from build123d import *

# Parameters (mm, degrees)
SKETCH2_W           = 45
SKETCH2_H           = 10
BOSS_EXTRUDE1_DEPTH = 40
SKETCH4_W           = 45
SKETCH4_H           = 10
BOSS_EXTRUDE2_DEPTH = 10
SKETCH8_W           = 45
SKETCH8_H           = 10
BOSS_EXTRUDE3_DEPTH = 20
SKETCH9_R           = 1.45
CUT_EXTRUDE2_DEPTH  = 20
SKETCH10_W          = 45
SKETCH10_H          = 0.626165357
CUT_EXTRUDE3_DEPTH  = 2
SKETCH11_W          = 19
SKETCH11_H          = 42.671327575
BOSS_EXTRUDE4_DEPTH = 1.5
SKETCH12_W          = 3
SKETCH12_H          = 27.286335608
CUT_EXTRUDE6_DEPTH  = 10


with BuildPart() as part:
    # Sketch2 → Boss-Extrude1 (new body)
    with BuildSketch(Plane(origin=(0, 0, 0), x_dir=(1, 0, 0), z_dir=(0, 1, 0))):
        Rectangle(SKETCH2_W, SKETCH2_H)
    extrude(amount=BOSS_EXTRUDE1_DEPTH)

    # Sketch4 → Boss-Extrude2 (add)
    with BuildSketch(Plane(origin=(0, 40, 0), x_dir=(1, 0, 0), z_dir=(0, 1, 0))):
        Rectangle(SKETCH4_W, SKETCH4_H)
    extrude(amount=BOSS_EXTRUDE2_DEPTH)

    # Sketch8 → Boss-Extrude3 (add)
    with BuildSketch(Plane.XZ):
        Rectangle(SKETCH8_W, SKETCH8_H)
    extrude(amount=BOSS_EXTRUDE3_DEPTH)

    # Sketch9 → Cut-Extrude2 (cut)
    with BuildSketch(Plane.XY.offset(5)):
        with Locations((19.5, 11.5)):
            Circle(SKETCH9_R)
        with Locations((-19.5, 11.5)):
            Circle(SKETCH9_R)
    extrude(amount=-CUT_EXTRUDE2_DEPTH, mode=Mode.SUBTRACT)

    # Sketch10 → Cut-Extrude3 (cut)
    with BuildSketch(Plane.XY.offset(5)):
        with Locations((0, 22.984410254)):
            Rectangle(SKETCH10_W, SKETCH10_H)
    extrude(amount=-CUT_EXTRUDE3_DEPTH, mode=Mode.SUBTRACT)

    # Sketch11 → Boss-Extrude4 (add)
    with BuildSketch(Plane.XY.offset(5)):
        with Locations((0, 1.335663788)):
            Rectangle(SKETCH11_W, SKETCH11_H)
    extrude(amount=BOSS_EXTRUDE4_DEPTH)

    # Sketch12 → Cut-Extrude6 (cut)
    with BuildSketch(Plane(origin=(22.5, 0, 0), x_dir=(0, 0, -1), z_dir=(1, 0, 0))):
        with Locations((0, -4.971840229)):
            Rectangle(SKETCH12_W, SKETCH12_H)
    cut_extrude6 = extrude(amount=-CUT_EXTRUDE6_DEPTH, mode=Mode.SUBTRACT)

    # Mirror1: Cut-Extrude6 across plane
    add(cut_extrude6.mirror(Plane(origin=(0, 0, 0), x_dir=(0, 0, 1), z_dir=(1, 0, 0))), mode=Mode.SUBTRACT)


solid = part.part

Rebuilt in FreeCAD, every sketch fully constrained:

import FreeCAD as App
import Part
import Sketcher

V = App.Vector

doc = App.newDocument("Part")
body = doc.addObject("PartDesign::Body", "Body")

sketch1 = body.newObject("Sketcher::SketchObject", "Sketch")
sketch1.AttachmentSupport = (doc.getObject("XZ_Plane"), [""])
sketch1.MapMode = "FlatFace"
sketch1.addGeometry([
    Part.LineSegment(V(-22.5, -5, 0), V(-22.5, 5, 0)),
    Part.LineSegment(V(-22.5, 5, 0), V(22.5, 5, 0)),
    Part.LineSegment(V(22.5, 5, 0), V(22.5, -5, 0)),
    Part.LineSegment(V(22.5, -5, 0), V(-22.5, -5, 0)),
], False)
sketch1.addConstraint([
    Sketcher.Constraint("Coincident", 0, 2, 1, 1),
    Sketcher.Constraint("Coincident", 1, 2, 2, 1),
    Sketcher.Constraint("Coincident", 2, 2, 3, 1),
    Sketcher.Constraint("Coincident", 3, 2, 0, 1),
    Sketcher.Constraint("Vertical", 0),
    Sketcher.Constraint("Horizontal", 1),
    Sketcher.Constraint("Vertical", 2),
    Sketcher.Constraint("Horizontal", 3),
    Sketcher.Constraint("Symmetric", 0, 2, 2, 2, -1, 1),
    Sketcher.Constraint("DistanceX", 1, 1, 1, 2, 45.0),
    Sketcher.Constraint("DistanceY", 0, 1, 0, 2, 10.0),
])
pad1 = body.newObject("PartDesign::Pad", "Pad")
pad1.Profile = sketch1
pad1.Length = 40
pad1.Reversed = True

sketch2 = body.newObject("Sketcher::SketchObject", "Sketch001")
sketch2.AttachmentSupport = (doc.getObject("XZ_Plane"), [""])
sketch2.MapMode = "FlatFace"
sketch2.AttachmentOffset = App.Placement(V(0, 0, -40), App.Rotation())
sketch2.addGeometry([
    Part.LineSegment(V(-22.5, -5, 0), V(-22.5, 5, 0)),
    Part.LineSegment(V(-22.5, 5, 0), V(22.5, 5, 0)),
    Part.LineSegment(V(22.5, 5, 0), V(22.5, -5, 0)),
    Part.LineSegment(V(22.5, -5, 0), V(-22.5, -5, 0)),
], False)
sketch2.addConstraint([
    Sketcher.Constraint("Coincident", 0, 2, 1, 1),
    Sketcher.Constraint("Coincident", 1, 2, 2, 1),
    Sketcher.Constraint("Coincident", 2, 2, 3, 1),
    Sketcher.Constraint("Coincident", 3, 2, 0, 1),
    Sketcher.Constraint("Vertical", 0),
    Sketcher.Constraint("Horizontal", 1),
    Sketcher.Constraint("Vertical", 2),
    Sketcher.Constraint("Horizontal", 3),
    Sketcher.Constraint("Symmetric", 0, 2, 2, 2, -1, 1),
    Sketcher.Constraint("DistanceX", 1, 1, 1, 2, 45.0),
    Sketcher.Constraint("DistanceY", 0, 1, 0, 2, 10.0),
])
pad2 = body.newObject("PartDesign::Pad", "Pad001")
pad2.Profile = sketch2
pad2.Length = 10
pad2.Reversed = True

sketch3 = body.newObject("Sketcher::SketchObject", "Sketch002")
sketch3.AttachmentSupport = (doc.getObject("XZ_Plane"), [""])
sketch3.MapMode = "FlatFace"
sketch3.addGeometry([
    Part.LineSegment(V(-22.5, 5, 0), V(-22.5, -5, 0)),
    Part.LineSegment(V(-22.5, -5, 0), V(22.5, -5, 0)),
    Part.LineSegment(V(22.5, -5, 0), V(22.5, 5, 0)),
    Part.LineSegment(V(22.5, 5, 0), V(-22.5, 5, 0)),
], False)
sketch3.addConstraint([
    Sketcher.Constraint("Coincident", 0, 2, 1, 1),
    Sketcher.Constraint("Coincident", 1, 2, 2, 1),
    Sketcher.Constraint("Coincident", 2, 2, 3, 1),
    Sketcher.Constraint("Coincident", 3, 2, 0, 1),
    Sketcher.Constraint("Vertical", 0),
    Sketcher.Constraint("Horizontal", 1),
    Sketcher.Constraint("Vertical", 2),
    Sketcher.Constraint("Horizontal", 3),
    Sketcher.Constraint("Symmetric", 0, 2, 2, 2, -1, 1),
    Sketcher.Constraint("DistanceX", 1, 1, 1, 2, 45.0),
    Sketcher.Constraint("DistanceY", 0, 2, 0, 1, 10.0),
])
pad3 = body.newObject("PartDesign::Pad", "Pad002")
pad3.Profile = sketch3
pad3.Length = 20

sketch4 = body.newObject("Sketcher::SketchObject", "Sketch003")
sketch4.AttachmentSupport = (doc.getObject("XY_Plane"), [""])
sketch4.MapMode = "FlatFace"
sketch4.AttachmentOffset = App.Placement(V(0, 0, 5), App.Rotation())
sketch4.addGeometry([
    Part.Circle(V(19.5, 11.5, 0), V(0, 0, 1), 1.45),
    Part.Circle(V(-19.5, 11.5, 0), V(0, 0, 1), 1.45),
], False)
sketch4.addConstraint([
    Sketcher.Constraint("Equal", 0, 1),
    Sketcher.Constraint("Symmetric", 0, 3, 1, 3, -2),
    Sketcher.Constraint("Diameter", 0, 2.9),
    Sketcher.Constraint("DistanceX", 1, 3, 0, 3, 39.0),
    Sketcher.Constraint("DistanceY", -1, 1, 0, 3, 11.5),
])
pocket1 = body.newObject("PartDesign::Pocket", "Pocket")
pocket1.Profile = sketch4
pocket1.Length = 20

sketch5 = body.newObject("Sketcher::SketchObject", "Sketch004")
sketch5.AttachmentSupport = (doc.getObject("XY_Plane"), [""])
sketch5.MapMode = "FlatFace"
sketch5.AttachmentOffset = App.Placement(V(0, 0, 5), App.Rotation())
sketch5.addGeometry([
    Part.LineSegment(V(-22.5, 23.297493, 0), V(-22.5, 22.671328, 0)),
    Part.LineSegment(V(-22.5, 22.671328, 0), V(22.5, 22.671328, 0)),
    Part.LineSegment(V(22.5, 22.671328, 0), V(22.5, 23.297493, 0)),
    Part.LineSegment(V(22.5, 23.297493, 0), V(-22.5, 23.297493, 0)),
], False)
sketch5.addConstraint([
    Sketcher.Constraint("Coincident", 0, 2, 1, 1),
    Sketcher.Constraint("Coincident", 1, 2, 2, 1),
    Sketcher.Constraint("Coincident", 2, 2, 3, 1),
    Sketcher.Constraint("Coincident", 3, 2, 0, 1),
    Sketcher.Constraint("Vertical", 0),
    Sketcher.Constraint("Horizontal", 1),
    Sketcher.Constraint("Vertical", 2),
    Sketcher.Constraint("Horizontal", 3),
    Sketcher.Constraint("DistanceX", 1, 1, 1, 2, 45.0),
    Sketcher.Constraint("DistanceX", 0, 2, -1, 1, 22.5),
    Sketcher.Constraint("DistanceY", 0, 2, 0, 1, 0.626165),
    Sketcher.Constraint("DistanceY", -1, 1, 0, 2, 22.671328),
])
pocket2 = body.newObject("PartDesign::Pocket", "Pocket001")
pocket2.Profile = sketch5
pocket2.Length = 2

sketch6 = body.newObject("Sketcher::SketchObject", "Sketch005")
sketch6.AttachmentSupport = (doc.getObject("XY_Plane"), [""])
sketch6.MapMode = "FlatFace"
sketch6.AttachmentOffset = App.Placement(V(0, 0, 5), App.Rotation())
sketch6.addGeometry([
    Part.LineSegment(V(-9.5, 22.671328, 0), V(-9.5, -20, 0)),
    Part.LineSegment(V(-9.5, -20, 0), V(9.5, -20, 0)),
    Part.LineSegment(V(9.5, -20, 0), V(9.5, 22.671328, 0)),
    Part.LineSegment(V(9.5, 22.671328, 0), V(-9.5, 22.671328, 0)),
], False)
sketch6.addConstraint([
    Sketcher.Constraint("Coincident", 0, 2, 1, 1),
    Sketcher.Constraint("Coincident", 1, 2, 2, 1),
    Sketcher.Constraint("Coincident", 2, 2, 3, 1),
    Sketcher.Constraint("Coincident", 3, 2, 0, 1),
    Sketcher.Constraint("Vertical", 0),
    Sketcher.Constraint("Horizontal", 1),
    Sketcher.Constraint("Vertical", 2),
    Sketcher.Constraint("Horizontal", 3),
    Sketcher.Constraint("DistanceX", 1, 1, 1, 2, 19.0),
    Sketcher.Constraint("DistanceY", 0, 2, -1, 1, 20.0),
    Sketcher.Constraint("DistanceX", 0, 2, -1, 1, 9.5),
    Sketcher.Constraint("DistanceY", 0, 2, 0, 1, 42.671328),
])
pad4 = body.newObject("PartDesign::Pad", "Pad003")
pad4.Profile = sketch6
pad4.Length = 1.5

sketch7 = body.newObject("Sketcher::SketchObject", "Sketch006")
sketch7.AttachmentSupport = (doc.getObject("YZ_Plane"), [""])
sketch7.MapMode = "FlatFace"
sketch7.AttachmentOffset = App.Placement(V(0, 0, 22.5), App.Rotation())
sketch7.addGeometry([
    Part.LineSegment(V(8.671328, 1.5, 0), V(-18.615008, 1.5, 0)),
    Part.LineSegment(V(-18.615008, 1.5, 0), V(-18.615008, -1.5, 0)),
    Part.LineSegment(V(-18.615008, -1.5, 0), V(8.671328, -1.5, 0)),
    Part.LineSegment(V(8.671328, -1.5, 0), V(8.671328, 1.5, 0)),
], False)
sketch7.addConstraint([
    Sketcher.Constraint("Coincident", 0, 2, 1, 1),
    Sketcher.Constraint("Coincident", 1, 2, 2, 1),
    Sketcher.Constraint("Coincident", 2, 2, 3, 1),
    Sketcher.Constraint("Coincident", 3, 2, 0, 1),
    Sketcher.Constraint("Horizontal", 0),
    Sketcher.Constraint("Vertical", 1),
    Sketcher.Constraint("Horizontal", 2),
    Sketcher.Constraint("Vertical", 3),
    Sketcher.Constraint("DistanceY", 1, 2, 1, 1, 3.0),
    Sketcher.Constraint("DistanceY", -1, 1, 0, 2, 1.5),
    Sketcher.Constraint("DistanceX", 0, 2, 0, 1, 27.286336),
    Sketcher.Constraint("DistanceX", 0, 2, -1, 1, 18.615008),
])
pocket3 = body.newObject("PartDesign::Pocket", "Pocket002")
pocket3.Profile = sketch7
pocket3.Length = 10
doc.recompute()

mirrored = body.newObject("PartDesign::Mirrored", "Mirrored")
mirrored.Originals = [pocket3]
mirrored.MirrorPlane = (doc.getObject("YZ_Plane"), [""])
body.Tip = mirrored

doc.recompute()
